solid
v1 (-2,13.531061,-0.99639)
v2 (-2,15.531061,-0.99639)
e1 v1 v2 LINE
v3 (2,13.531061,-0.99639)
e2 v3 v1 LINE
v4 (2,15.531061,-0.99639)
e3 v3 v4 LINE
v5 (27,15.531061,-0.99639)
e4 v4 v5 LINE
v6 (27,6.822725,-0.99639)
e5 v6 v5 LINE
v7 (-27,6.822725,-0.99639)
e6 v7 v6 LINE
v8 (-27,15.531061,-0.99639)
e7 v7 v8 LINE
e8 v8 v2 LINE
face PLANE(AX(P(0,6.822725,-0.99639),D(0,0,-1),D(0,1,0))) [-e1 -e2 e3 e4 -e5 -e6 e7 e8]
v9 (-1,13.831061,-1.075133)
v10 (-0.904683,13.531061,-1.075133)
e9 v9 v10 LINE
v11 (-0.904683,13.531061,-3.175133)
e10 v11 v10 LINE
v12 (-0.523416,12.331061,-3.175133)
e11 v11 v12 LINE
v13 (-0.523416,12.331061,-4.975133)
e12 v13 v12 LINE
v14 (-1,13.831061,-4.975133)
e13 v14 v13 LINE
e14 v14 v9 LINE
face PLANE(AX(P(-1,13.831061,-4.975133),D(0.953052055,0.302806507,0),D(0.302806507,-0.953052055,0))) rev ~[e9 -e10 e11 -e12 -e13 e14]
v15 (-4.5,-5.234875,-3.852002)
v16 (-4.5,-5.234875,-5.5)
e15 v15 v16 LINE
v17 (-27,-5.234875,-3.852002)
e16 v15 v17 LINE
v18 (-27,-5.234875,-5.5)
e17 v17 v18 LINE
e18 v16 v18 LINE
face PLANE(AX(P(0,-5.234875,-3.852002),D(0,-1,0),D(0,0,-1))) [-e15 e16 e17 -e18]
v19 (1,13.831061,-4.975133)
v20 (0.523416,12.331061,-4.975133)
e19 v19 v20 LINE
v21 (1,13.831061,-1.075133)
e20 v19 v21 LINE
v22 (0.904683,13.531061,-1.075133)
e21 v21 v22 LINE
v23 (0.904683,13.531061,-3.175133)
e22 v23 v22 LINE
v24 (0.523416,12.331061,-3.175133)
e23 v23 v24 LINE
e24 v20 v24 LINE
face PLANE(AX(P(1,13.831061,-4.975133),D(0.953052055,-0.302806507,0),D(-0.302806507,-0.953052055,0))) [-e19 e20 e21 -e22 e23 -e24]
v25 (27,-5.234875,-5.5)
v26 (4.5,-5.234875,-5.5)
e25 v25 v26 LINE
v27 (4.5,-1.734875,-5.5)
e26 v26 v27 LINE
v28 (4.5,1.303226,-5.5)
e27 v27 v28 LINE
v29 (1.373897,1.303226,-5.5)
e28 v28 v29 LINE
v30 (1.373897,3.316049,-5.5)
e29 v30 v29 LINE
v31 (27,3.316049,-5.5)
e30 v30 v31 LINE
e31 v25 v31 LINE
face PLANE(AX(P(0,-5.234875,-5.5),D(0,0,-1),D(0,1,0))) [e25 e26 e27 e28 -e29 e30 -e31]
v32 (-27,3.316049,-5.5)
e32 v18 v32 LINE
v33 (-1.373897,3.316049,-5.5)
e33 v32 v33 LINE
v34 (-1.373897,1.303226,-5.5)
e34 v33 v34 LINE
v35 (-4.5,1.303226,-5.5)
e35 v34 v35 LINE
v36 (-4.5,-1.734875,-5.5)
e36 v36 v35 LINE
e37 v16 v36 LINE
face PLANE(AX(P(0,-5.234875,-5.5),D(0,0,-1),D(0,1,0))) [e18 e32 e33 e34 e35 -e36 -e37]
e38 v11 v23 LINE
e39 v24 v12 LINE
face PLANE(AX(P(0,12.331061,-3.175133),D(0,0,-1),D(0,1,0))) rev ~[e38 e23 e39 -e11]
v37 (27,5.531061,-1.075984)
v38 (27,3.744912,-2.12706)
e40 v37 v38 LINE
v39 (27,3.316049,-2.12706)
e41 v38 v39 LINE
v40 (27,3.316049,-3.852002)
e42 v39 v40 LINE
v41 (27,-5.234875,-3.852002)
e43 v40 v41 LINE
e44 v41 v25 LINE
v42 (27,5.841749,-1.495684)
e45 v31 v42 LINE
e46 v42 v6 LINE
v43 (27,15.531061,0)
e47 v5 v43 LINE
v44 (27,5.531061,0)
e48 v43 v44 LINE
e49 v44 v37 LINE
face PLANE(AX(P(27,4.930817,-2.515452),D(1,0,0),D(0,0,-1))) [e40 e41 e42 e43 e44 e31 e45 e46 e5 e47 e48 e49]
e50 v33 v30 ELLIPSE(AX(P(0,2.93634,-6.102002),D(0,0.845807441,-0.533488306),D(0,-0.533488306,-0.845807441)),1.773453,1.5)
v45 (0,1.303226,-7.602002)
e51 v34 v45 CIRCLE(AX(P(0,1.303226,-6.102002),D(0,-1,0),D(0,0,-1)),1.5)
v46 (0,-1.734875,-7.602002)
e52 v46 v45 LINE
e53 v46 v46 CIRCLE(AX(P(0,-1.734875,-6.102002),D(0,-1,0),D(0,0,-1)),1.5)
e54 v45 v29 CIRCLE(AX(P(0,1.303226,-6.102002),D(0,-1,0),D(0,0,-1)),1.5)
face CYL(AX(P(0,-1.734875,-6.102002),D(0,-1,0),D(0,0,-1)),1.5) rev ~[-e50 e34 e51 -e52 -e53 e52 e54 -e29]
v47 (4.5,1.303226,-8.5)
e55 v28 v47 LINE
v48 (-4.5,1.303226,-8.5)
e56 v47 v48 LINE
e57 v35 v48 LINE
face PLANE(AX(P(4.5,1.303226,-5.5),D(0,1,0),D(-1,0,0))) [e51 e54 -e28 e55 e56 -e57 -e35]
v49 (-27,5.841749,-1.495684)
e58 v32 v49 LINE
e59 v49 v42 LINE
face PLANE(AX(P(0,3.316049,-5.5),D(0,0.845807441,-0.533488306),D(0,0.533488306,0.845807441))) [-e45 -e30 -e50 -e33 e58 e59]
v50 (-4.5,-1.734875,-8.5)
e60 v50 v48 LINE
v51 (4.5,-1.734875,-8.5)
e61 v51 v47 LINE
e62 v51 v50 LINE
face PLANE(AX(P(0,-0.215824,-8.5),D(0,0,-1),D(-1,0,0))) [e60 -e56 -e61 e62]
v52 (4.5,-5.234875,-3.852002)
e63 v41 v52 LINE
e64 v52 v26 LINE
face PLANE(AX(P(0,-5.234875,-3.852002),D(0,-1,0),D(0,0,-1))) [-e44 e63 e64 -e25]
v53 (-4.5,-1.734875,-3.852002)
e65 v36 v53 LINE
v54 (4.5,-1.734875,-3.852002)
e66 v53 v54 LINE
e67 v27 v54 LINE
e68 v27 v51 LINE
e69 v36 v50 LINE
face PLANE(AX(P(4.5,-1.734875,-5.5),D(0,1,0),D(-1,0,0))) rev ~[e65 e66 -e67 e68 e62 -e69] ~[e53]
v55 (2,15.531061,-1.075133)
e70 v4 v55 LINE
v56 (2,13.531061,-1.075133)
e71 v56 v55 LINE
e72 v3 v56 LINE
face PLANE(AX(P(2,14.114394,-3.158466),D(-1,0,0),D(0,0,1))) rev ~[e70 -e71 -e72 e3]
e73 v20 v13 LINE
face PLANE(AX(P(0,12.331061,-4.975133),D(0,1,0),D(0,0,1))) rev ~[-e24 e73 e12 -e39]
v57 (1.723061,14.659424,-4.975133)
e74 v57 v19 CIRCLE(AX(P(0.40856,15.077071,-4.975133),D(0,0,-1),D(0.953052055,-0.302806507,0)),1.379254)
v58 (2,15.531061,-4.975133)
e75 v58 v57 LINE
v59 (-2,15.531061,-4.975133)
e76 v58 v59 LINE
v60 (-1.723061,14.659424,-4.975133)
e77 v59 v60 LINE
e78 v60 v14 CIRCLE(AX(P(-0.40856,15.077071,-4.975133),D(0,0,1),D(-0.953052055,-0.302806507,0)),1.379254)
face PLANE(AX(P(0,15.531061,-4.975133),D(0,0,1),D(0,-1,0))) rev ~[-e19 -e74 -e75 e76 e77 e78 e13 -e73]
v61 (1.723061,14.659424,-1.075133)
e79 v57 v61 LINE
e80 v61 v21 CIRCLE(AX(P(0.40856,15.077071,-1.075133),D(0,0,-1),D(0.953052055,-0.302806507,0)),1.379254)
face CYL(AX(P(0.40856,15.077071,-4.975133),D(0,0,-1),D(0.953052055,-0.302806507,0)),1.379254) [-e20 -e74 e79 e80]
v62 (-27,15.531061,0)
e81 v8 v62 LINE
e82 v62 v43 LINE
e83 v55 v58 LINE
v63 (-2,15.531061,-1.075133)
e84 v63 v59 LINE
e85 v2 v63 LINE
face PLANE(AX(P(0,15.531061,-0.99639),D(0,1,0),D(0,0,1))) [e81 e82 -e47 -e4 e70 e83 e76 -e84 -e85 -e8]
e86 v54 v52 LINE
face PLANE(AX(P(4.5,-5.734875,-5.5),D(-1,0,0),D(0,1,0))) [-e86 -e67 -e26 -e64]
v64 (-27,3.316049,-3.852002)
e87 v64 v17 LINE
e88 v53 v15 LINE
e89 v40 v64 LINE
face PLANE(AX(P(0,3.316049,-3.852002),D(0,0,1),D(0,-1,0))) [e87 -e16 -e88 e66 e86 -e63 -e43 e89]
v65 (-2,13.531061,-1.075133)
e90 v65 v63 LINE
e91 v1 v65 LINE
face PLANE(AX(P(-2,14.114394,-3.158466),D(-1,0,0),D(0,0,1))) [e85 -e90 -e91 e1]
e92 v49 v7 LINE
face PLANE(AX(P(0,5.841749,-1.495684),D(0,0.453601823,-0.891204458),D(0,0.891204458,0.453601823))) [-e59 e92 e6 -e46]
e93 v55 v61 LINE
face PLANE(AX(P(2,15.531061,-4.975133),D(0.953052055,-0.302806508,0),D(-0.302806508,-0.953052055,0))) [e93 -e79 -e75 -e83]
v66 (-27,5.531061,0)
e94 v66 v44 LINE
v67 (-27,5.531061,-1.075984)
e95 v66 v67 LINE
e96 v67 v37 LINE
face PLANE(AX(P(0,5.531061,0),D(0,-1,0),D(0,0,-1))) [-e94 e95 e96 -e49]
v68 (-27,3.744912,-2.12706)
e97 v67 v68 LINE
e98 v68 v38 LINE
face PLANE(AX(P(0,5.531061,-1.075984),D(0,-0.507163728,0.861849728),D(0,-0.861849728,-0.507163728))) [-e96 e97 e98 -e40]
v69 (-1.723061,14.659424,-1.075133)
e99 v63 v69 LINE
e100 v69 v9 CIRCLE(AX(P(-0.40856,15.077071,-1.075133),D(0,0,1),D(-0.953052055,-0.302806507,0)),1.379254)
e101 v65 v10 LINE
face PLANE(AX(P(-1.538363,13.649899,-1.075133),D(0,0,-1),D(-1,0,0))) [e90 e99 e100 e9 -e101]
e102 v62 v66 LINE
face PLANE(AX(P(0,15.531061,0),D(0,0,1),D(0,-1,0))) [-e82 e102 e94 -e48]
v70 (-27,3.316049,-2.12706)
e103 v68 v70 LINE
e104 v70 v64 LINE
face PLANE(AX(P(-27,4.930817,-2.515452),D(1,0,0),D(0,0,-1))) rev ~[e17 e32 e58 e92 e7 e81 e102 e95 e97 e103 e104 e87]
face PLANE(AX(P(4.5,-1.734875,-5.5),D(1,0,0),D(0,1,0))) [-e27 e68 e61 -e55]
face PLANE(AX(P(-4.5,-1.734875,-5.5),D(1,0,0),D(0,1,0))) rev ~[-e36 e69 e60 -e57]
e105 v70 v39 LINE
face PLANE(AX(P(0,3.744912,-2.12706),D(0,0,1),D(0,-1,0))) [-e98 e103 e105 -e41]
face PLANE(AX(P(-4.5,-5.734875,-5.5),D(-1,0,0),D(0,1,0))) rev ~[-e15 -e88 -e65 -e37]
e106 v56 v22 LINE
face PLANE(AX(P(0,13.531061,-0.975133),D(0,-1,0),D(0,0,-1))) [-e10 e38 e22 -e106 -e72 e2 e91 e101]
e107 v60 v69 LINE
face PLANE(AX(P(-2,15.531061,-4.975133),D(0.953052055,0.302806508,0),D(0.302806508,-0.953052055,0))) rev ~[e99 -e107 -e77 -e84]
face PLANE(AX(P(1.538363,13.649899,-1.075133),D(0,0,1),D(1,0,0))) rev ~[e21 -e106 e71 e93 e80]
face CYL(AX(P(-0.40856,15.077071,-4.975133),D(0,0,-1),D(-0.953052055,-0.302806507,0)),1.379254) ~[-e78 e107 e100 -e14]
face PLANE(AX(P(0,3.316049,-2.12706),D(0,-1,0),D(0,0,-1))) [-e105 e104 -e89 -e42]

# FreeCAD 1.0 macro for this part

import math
import FreeCAD as App
import Part
import Sketcher
Q = App.Units.Quantity

doc = App.newDocument("Part")
body = doc.addObject("PartDesign::Body", "Body")

sketch1 = doc.addObject("Sketcher::SketchObject", "Sketch")
body.addObject(sketch1)
sketch1.AttachmentSupport = (doc.YZ_Plane, [""])
sketch1.MapMode = "FlatFace"
sketch1.addGeometry(Part.LineSegment(App.Vector(-5.23, -5.5, 0), App.Vector(3.32, -5.5, 0)), False)
sketch1.addGeometry(Part.LineSegment(App.Vector(3.32, -5.5, 0), App.Vector(5.84, -1.5, 0)), False)
sketch1.addGeometry(Part.LineSegment(App.Vector(5.84, -1.5, 0), App.Vector(6.82, -1, 0)), False)
sketch1.addGeometry(Part.LineSegment(App.Vector(6.82, -1, 0), App.Vector(15.53, -1, 0)), False)
sketch1.addGeometry(Part.LineSegment(App.Vector(15.53, -1, 0), App.Vector(15.53, 0, 0)), False)
sketch1.addGeometry(Part.LineSegment(App.Vector(15.53, 0, 0), App.Vector(5.53, 0, 0)), False)
sketch1.addGeometry(Part.LineSegment(App.Vector(5.53, 0, 0), App.Vector(5.53, -1.08, 0)), False)
sketch1.addGeometry(Part.LineSegment(App.Vector(5.53, -1.08, 0), App.Vector(3.74, -2.13, 0)), False)
sketch1.addGeometry(Part.LineSegment(App.Vector(3.74, -2.13, 0), App.Vector(3.32, -2.13, 0)), False)
sketch1.addGeometry(Part.LineSegment(App.Vector(3.32, -2.13, 0), App.Vector(3.32, -3.85, 0)), False)
sketch1.addGeometry(Part.LineSegment(App.Vector(3.32, -3.85, 0), App.Vector(-5.23, -3.85, 0)), False)
sketch1.addGeometry(Part.LineSegment(App.Vector(-5.23, -3.85, 0), App.Vector(-5.23, -5.5, 0)), False)
sketch1.addConstraint(Sketcher.Constraint("Coincident", 0, 2, 1, 1))
sketch1.addConstraint(Sketcher.Constraint("Coincident", 1, 2, 2, 1))
sketch1.addConstraint(Sketcher.Constraint("Coincident", 2, 2, 3, 1))
sketch1.addConstraint(Sketcher.Constraint("Coincident", 3, 2, 4, 1))
sketch1.addConstraint(Sketcher.Constraint("Coincident", 4, 2, 5, 1))
sketch1.addConstraint(Sketcher.Constraint("Coincident", 5, 2, 6, 1))
sketch1.addConstraint(Sketcher.Constraint("Coincident", 6, 2, 7, 1))
sketch1.addConstraint(Sketcher.Constraint("Coincident", 7, 2, 8, 1))
sketch1.addConstraint(Sketcher.Constraint("Coincident", 8, 2, 9, 1))
sketch1.addConstraint(Sketcher.Constraint("Coincident", 9, 2, 10, 1))
sketch1.addConstraint(Sketcher.Constraint("Coincident", 10, 2, 11, 1))
sketch1.addConstraint(Sketcher.Constraint("Coincident", 11, 2, 0, 1))
sketch1.addConstraint(Sketcher.Constraint("Horizontal", 0))
sketch1.addConstraint(Sketcher.Constraint("Horizontal", 3))
sketch1.addConstraint(Sketcher.Constraint("Vertical", 4))
sketch1.addConstraint(Sketcher.Constraint("Horizontal", 5))
sketch1.addConstraint(Sketcher.Constraint("Vertical", 6))
sketch1.addConstraint(Sketcher.Constraint("Horizontal", 8))
sketch1.addConstraint(Sketcher.Constraint("Vertical", 9))
sketch1.addConstraint(Sketcher.Constraint("Horizontal", 10))
sketch1.addConstraint(Sketcher.Constraint("Vertical", 11))
sketch1.addConstraint(Sketcher.Constraint("PointOnObject", 4, 2, -1))
sketch1.addConstraint(Sketcher.Constraint("Vertical", 0, 2, 8, 2))
sketch1.addConstraint(Sketcher.Constraint("DistanceX", 5, 2, 5, 1, Q("10 mm")))
sketch1.addConstraint(Sketcher.Constraint("DistanceY", 0, 2, -1, 1, Q("5.5 mm")))
sketch1.addConstraint(Sketcher.Constraint("DistanceY", 11, 2, 11, 1, Q("1.647998 mm")))
sketch1.addConstraint(Sketcher.Constraint("DistanceY", 4, 1, 4, 2, Q("0.99639 mm")))
sketch1.addConstraint(Sketcher.Constraint("DistanceY", 9, 2, 9, 1, Q("1.724942 mm")))
sketch1.addConstraint(Sketcher.Constraint("DistanceX", 0, 2, 1, 2, Q("2.5257 mm")))
sketch1.addConstraint(Sketcher.Constraint("DistanceY", 1, 2, 6, 2, Q("0.4197 mm")))
sketch1.addConstraint(Sketcher.Constraint("Distance", 2, Q("1.10073 mm")))
sketch1.addConstraint(Sketcher.Constraint("Distance", 7, Q("2.07246 mm")))
sketch1.addConstraint(Sketcher.Constraint("DistanceX", 0, 1, 0, 2, Q("8.550924 mm")))
sketch1.addConstraint(Sketcher.Constraint("DistanceX", 3, 1, 3, 2, Q("8.708336 mm")))
sketch1.addConstraint(Sketcher.Constraint("DistanceX", 8, 2, 8, 1, Q("0.428863 mm")))
sketch1.addConstraint(Sketcher.Constraint("DistanceX", -1, 1, 0, 2, Q("3.316049 mm")))
pad1 = doc.addObject("PartDesign::Pad", "Pad")
body.addObject(pad1)
pad1.Profile = sketch1
pad1.Length = 54
pad1.Midplane = True

sketch2 = doc.addObject("Sketcher::SketchObject", "Sketch001")
body.addObject(sketch2)
sketch2.AttachmentSupport = (doc.XY_Plane, [""])
sketch2.MapMode = "FlatFace"
sketch2.AttachmentOffset = App.Placement(App.Vector(0, 0, -5.5), App.Rotation())
sketch2.addGeometry(Part.LineSegment(App.Vector(4.5, -1.7, 0), App.Vector(4.5, -5.7, 0)), False)
sketch2.addGeometry(Part.LineSegment(App.Vector(4.5, -5.7, 0), App.Vector(-4.5, -5.7, 0)), False)
sketch2.addGeometry(Part.LineSegment(App.Vector(-4.5, -5.7, 0), App.Vector(-4.5, -1.7, 0)), False)
sketch2.addGeometry(Part.LineSegment(App.Vector(-4.5, -1.7, 0), App.Vector(4.5, -1.7, 0)), False)
sketch2.addConstraint(Sketcher.Constraint("Coincident", 0, 2, 1, 1))
sketch2.addConstraint(Sketcher.Constraint("Coincident", 1, 2, 2, 1))
sketch2.addConstraint(Sketcher.Constraint("Coincident", 2, 2, 3, 1))
sketch2.addConstraint(Sketcher.Constraint("Coincident", 3, 2, 0, 1))
sketch2.addConstraint(Sketcher.Constraint("Vertical", 0))
sketch2.addConstraint(Sketcher.Constraint("Horizontal", 1))
sketch2.addConstraint(Sketcher.Constraint("Vertical", 2))
sketch2.addConstraint(Sketcher.Constraint("Horizontal", 3))
sketch2.addConstraint(Sketcher.Constraint("DistanceX", 1, 2, 1, 1, Q("9 mm")))
sketch2.addConstraint(Sketcher.Constraint("DistanceY", 0, 2, 0, 1, Q("4 mm")))
sketch2.addConstraint(Sketcher.Constraint("DistanceX", -1, 1, 0, 2, Q("4.5 mm")))
sketch2.addConstraint(Sketcher.Constraint("DistanceY", 0, 2, -1, 1, Q("5.734875 mm")))
pocket1 = doc.addObject("PartDesign::Pocket", "Pocket")
body.addObject(pocket1)
pocket1.Profile = sketch2
pocket1.Length = 4
pocket1.Reversed = True

sketch3 = doc.addObject("Sketcher::SketchObject", "Sketch002")
body.addObject(sketch3)
sketch3.AttachmentSupport = (doc.XY_Plane, [""])
sketch3.MapMode = "FlatFace"
sketch3.AttachmentOffset = App.Placement(App.Vector(0, 0, -5.5), App.Rotation())
sketch3.addGeometry(Part.LineSegment(App.Vector(4.5, 1.3, 0), App.Vector(4.5, -1.7, 0)), False)
sketch3.addGeometry(Part.LineSegment(App.Vector(4.5, -1.7, 0), App.Vector(-4.5, -1.7, 0)), False)
sketch3.addGeometry(Part.LineSegment(App.Vector(-4.5, -1.7, 0), App.Vector(-4.5, 1.3, 0)), False)
sketch3.addGeometry(Part.LineSegment(App.Vector(-4.5, 1.3, 0), App.Vector(4.5, 1.3, 0)), False)
sketch3.addConstraint(Sketcher.Constraint("Coincident", 0, 2, 1, 1))
sketch3.addConstraint(Sketcher.Constraint("Coincident", 1, 2, 2, 1))
sketch3.addConstraint(Sketcher.Constraint("Coincident", 2, 2, 3, 1))
sketch3.addConstraint(Sketcher.Constraint("Coincident", 3, 2, 0, 1))
sketch3.addConstraint(Sketcher.Constraint("Vertical", 0))
sketch3.addConstraint(Sketcher.Constraint("Horizontal", 1))
sketch3.addConstraint(Sketcher.Constraint("Vertical", 2))
sketch3.addConstraint(Sketcher.Constraint("Horizontal", 3))
sketch3.addConstraint(Sketcher.Constraint("DistanceX", 1, 2, 1, 1, Q("9 mm")))
sketch3.addConstraint(Sketcher.Constraint("DistanceX", -1, 1, 0, 2, Q("4.5 mm")))
sketch3.addConstraint(Sketcher.Constraint("DistanceY", 0, 2, 0, 1, Q("3.038101 mm")))
sketch3.addConstraint(Sketcher.Constraint("DistanceY", 0, 2, -1, 1, Q("1.734875 mm")))
pad2 = doc.addObject("PartDesign::Pad", "Pad001")
body.addObject(pad2)
pad2.Profile = sketch3
pad2.Length = 3
pad2.Reversed = True

sketch4 = doc.addObject("Sketcher::SketchObject", "Sketch003")
body.addObject(sketch4)
sketch4.AttachmentSupport = (doc.XZ_Plane, [""])
sketch4.MapMode = "FlatFace"
sketch4.AttachmentOffset = App.Placement(App.Vector(0, 0, 1.734875), App.Rotation())
sketch4.addGeometry(Part.Circle(App.Vector(0, -6.1, 0), App.Vector(0, 0, 1), 1.5), False)
sketch4.addConstraint(Sketcher.Constraint("PointOnObject", 0, 3, -2))
sketch4.addConstraint(Sketcher.Constraint("Diameter", 0, Q("3 mm")))
sketch4.addConstraint(Sketcher.Constraint("DistanceY", 0, 3, -1, 1, Q("6.102002 mm")))
pocket2 = doc.addObject("PartDesign::Pocket", "Pocket001")
body.addObject(pocket2)
pocket2.Profile = sketch4
pocket2.Length = 9

sketch5 = doc.addObject("Sketcher::SketchObject", "Sketch004")
body.addObject(sketch5)
sketch5.AttachmentSupport = (doc.YZ_Plane, [""])
sketch5.MapMode = "FlatFace"
sketch5.addGeometry(Part.LineSegment(App.Vector(15.5, -5, 0), App.Vector(15.5, -1, 0)), False)
sketch5.addGeometry(Part.LineSegment(App.Vector(15.5, -1, 0), App.Vector(13.5, -1, 0)), False)
sketch5.addGeometry(Part.LineSegment(App.Vector(13.5, -1, 0), App.Vector(13.5, -3.2, 0)), False)
sketch5.addGeometry(Part.LineSegment(App.Vector(13.5, -3.2, 0), App.Vector(12.3, -3.2, 0)), False)
sketch5.addGeometry(Part.LineSegment(App.Vector(12.3, -3.2, 0), App.Vector(12.3, -5, 0)), False)
sketch5.addGeometry(Part.LineSegment(App.Vector(12.3, -5, 0), App.Vector(15.5, -5, 0)), False)
sketch5.addConstraint(Sketcher.Constraint("Coincident", 0, 2, 1, 1))
sketch5.addConstraint(Sketcher.Constraint("Coincident", 1, 2, 2, 1))
sketch5.addConstraint(Sketcher.Constraint("Coincident", 2, 2, 3, 1))
sketch5.addConstraint(Sketcher.Constraint("Coincident", 3, 2, 4, 1))
sketch5.addConstraint(Sketcher.Constraint("Coincident", 4, 2, 5, 1))
sketch5.addConstraint(Sketcher.Constraint("Coincident", 5, 2, 0, 1))
sketch5.addConstraint(Sketcher.Constraint("Vertical", 0))
sketch5.addConstraint(Sketcher.Constraint("Horizontal", 1))
sketch5.addConstraint(Sketcher.Constraint("Vertical", 2))
sketch5.addConstraint(Sketcher.Constraint("Horizontal", 3))
sketch5.addConstraint(Sketcher.Constraint("Vertical", 4))
sketch5.addConstraint(Sketcher.Constraint("Horizontal", 5))
sketch5.addConstraint(Sketcher.Constraint("DistanceX", 1, 2, 1, 1, Q("2 mm")))
sketch5.addConstraint(Sketcher.Constraint("DistanceY", 0, 1, 0, 2, Q("4 mm")))
sketch5.addConstraint(Sketcher.Constraint("DistanceX", 3, 2, 3, 1, Q("1.2 mm")))
sketch5.addConstraint(Sketcher.Constraint("DistanceY", 2, 2, 2, 1, Q("2.2 mm")))
sketch5.addConstraint(Sketcher.Constraint("DistanceX", -1, 1, 0, 2, Q("15.531061 mm")))
sketch5.addConstraint(Sketcher.Constraint("DistanceY", 0, 2, -1, 1, Q("0.975133 mm")))
pad3 = doc.addObject("PartDesign::Pad", "Pad002")
body.addObject(pad3)
pad3.Profile = sketch5
pad3.Length = 4
pad3.Midplane = True

sketch6 = doc.addObject("Sketcher::SketchObject", "Sketch005")
body.addObject(sketch6)
sketch6.AttachmentSupport = (doc.XY_Plane, [""])
sketch6.MapMode = "FlatFace"
sketch6.AttachmentOffset = App.Placement(App.Vector(0, 0, -4.975133), App.Rotation())
sketch6.addGeometry(Part.LineSegment(App.Vector(-1, 13.8, 0), App.Vector(-0.5, 12.3, 0)), False)
sketch6.addGeometry(Part.LineSegment(App.Vector(-0.5, 12.3, 0), App.Vector(-2, 12.3, 0)), False)
sketch6.addGeometry(Part.LineSegment(App.Vector(-2, 12.3, 0), App.Vector(-2, 15.5, 0)), False)
sketch6.addGeometry(Part.LineSegment(App.Vector(-2, 15.5, 0), App.Vector(-1.7, 14.7, 0)), False)
sketch6.addGeometry(Part.ArcOfCircle(Part.Circle(App.Vector(-0.4, 15.1, 0), App.Vector(0, 0, 1), 1.4), math.radians(-162), math.radians(-115)), False)
sketch6.addGeometry(Part.ArcOfCircle(Part.Circle(App.Vector(0.4, 15.1, 0), App.Vector(0, 0, 1), 1.4), math.radians(-65), math.radians(-18)), False)
sketch6.addGeometry(Part.LineSegment(App.Vector(1.7, 14.7, 0), App.Vector(2, 15.5, 0)), False)
sketch6.addGeometry(Part.LineSegment(App.Vector(2, 15.5, 0), App.Vector(2, 12.3, 0)), False)
sketch6.addGeometry(Part.LineSegment(App.Vector(2, 12.3, 0), App.Vector(0.5, 12.3, 0)), False)
sketch6.addGeometry(Part.LineSegment(App.Vector(0.5, 12.3, 0), App.Vector(1, 13.8, 0)), False)
sketch6.addConstraint(Sketcher.Constraint("Coincident", 0, 2, 1, 1))
sketch6.addConstraint(Sketcher.Constraint("Coincident", 1, 2, 2, 1))
sketch6.addConstraint(Sketcher.Constraint("Coincident", 2, 2, 3, 1))
sketch6.addConstraint(Sketcher.Constraint("Tangent", 3, 2, 4, 1))
sketch6.addConstraint(Sketcher.Constraint("Coincident", 4, 2, 0, 1))
sketch6.addConstraint(Sketcher.Constraint("Tangent", 5, 2, 6, 1))
sketch6.addConstraint(Sketcher.Constraint("Coincident", 6, 2, 7, 1))
sketch6.addConstraint(Sketcher.Constraint("Coincident", 7, 2, 8, 1))
sketch6.addConstraint(Sketcher.Constraint("Coincident", 8, 2, 9, 1))
sketch6.addConstraint(Sketcher.Constraint("Coincident", 9, 2, 5, 1))
sketch6.addConstraint(Sketcher.Constraint("Horizontal", 1))
sketch6.addConstraint(Sketcher.Constraint("Vertical", 2))
sketch6.addConstraint(Sketcher.Constraint("Vertical", 7))
sketch6.addConstraint(Sketcher.Constraint("Horizontal", 8))
sketch6.addConstraint(Sketcher.Constraint("Equal", 4, 5))
sketch6.addConstraint(Sketcher.Constraint("Symmetric", 4, 3, 5, 3, -2))
sketch6.addConstraint(Sketcher.Constraint("Symmetric", 2, 2, 6, 2, -2))
sketch6.addConstraint(Sketcher.Constraint("Symmetric", 0, 2, 8, 2, -2))
sketch6.addConstraint(Sketcher.Constraint("Parallel", 0, 3))
sketch6.addConstraint(Sketcher.Constraint("Parallel", 6, 9))
sketch6.addConstraint(Sketcher.Constraint("DistanceY", 2, 1, 2, 2, Q("3.2 mm")))
sketch6.addConstraint(Sketcher.Constraint("DistanceX", 1, 2, -1, 1, Q("2 mm")))
sketch6.addConstraint(Sketcher.Constraint("DistanceX", 4, 2, -1, 1, Q("1 mm")))
sketch6.addConstraint(Sketcher.Constraint("DistanceY", 0, 2, 4, 2, Q("1.5 mm")))
sketch6.addConstraint(Sketcher.Constraint("Radius", 4, Q("1.379254 mm")))
sketch6.addConstraint(Sketcher.Constraint("DistanceX", 3, 2, 4, 3, Q("1.314501 mm")))
sketch6.addConstraint(Sketcher.Constraint("DistanceY", -1, 1, 4, 3, Q("15.077071 mm")))
pocket3 = doc.addObject("PartDesign::Pocket", "Pocket002")
body.addObject(pocket3)
pocket3.Profile = sketch6
pocket3.Length = 3.9
pocket3.Reversed = True

doc.recompute()
